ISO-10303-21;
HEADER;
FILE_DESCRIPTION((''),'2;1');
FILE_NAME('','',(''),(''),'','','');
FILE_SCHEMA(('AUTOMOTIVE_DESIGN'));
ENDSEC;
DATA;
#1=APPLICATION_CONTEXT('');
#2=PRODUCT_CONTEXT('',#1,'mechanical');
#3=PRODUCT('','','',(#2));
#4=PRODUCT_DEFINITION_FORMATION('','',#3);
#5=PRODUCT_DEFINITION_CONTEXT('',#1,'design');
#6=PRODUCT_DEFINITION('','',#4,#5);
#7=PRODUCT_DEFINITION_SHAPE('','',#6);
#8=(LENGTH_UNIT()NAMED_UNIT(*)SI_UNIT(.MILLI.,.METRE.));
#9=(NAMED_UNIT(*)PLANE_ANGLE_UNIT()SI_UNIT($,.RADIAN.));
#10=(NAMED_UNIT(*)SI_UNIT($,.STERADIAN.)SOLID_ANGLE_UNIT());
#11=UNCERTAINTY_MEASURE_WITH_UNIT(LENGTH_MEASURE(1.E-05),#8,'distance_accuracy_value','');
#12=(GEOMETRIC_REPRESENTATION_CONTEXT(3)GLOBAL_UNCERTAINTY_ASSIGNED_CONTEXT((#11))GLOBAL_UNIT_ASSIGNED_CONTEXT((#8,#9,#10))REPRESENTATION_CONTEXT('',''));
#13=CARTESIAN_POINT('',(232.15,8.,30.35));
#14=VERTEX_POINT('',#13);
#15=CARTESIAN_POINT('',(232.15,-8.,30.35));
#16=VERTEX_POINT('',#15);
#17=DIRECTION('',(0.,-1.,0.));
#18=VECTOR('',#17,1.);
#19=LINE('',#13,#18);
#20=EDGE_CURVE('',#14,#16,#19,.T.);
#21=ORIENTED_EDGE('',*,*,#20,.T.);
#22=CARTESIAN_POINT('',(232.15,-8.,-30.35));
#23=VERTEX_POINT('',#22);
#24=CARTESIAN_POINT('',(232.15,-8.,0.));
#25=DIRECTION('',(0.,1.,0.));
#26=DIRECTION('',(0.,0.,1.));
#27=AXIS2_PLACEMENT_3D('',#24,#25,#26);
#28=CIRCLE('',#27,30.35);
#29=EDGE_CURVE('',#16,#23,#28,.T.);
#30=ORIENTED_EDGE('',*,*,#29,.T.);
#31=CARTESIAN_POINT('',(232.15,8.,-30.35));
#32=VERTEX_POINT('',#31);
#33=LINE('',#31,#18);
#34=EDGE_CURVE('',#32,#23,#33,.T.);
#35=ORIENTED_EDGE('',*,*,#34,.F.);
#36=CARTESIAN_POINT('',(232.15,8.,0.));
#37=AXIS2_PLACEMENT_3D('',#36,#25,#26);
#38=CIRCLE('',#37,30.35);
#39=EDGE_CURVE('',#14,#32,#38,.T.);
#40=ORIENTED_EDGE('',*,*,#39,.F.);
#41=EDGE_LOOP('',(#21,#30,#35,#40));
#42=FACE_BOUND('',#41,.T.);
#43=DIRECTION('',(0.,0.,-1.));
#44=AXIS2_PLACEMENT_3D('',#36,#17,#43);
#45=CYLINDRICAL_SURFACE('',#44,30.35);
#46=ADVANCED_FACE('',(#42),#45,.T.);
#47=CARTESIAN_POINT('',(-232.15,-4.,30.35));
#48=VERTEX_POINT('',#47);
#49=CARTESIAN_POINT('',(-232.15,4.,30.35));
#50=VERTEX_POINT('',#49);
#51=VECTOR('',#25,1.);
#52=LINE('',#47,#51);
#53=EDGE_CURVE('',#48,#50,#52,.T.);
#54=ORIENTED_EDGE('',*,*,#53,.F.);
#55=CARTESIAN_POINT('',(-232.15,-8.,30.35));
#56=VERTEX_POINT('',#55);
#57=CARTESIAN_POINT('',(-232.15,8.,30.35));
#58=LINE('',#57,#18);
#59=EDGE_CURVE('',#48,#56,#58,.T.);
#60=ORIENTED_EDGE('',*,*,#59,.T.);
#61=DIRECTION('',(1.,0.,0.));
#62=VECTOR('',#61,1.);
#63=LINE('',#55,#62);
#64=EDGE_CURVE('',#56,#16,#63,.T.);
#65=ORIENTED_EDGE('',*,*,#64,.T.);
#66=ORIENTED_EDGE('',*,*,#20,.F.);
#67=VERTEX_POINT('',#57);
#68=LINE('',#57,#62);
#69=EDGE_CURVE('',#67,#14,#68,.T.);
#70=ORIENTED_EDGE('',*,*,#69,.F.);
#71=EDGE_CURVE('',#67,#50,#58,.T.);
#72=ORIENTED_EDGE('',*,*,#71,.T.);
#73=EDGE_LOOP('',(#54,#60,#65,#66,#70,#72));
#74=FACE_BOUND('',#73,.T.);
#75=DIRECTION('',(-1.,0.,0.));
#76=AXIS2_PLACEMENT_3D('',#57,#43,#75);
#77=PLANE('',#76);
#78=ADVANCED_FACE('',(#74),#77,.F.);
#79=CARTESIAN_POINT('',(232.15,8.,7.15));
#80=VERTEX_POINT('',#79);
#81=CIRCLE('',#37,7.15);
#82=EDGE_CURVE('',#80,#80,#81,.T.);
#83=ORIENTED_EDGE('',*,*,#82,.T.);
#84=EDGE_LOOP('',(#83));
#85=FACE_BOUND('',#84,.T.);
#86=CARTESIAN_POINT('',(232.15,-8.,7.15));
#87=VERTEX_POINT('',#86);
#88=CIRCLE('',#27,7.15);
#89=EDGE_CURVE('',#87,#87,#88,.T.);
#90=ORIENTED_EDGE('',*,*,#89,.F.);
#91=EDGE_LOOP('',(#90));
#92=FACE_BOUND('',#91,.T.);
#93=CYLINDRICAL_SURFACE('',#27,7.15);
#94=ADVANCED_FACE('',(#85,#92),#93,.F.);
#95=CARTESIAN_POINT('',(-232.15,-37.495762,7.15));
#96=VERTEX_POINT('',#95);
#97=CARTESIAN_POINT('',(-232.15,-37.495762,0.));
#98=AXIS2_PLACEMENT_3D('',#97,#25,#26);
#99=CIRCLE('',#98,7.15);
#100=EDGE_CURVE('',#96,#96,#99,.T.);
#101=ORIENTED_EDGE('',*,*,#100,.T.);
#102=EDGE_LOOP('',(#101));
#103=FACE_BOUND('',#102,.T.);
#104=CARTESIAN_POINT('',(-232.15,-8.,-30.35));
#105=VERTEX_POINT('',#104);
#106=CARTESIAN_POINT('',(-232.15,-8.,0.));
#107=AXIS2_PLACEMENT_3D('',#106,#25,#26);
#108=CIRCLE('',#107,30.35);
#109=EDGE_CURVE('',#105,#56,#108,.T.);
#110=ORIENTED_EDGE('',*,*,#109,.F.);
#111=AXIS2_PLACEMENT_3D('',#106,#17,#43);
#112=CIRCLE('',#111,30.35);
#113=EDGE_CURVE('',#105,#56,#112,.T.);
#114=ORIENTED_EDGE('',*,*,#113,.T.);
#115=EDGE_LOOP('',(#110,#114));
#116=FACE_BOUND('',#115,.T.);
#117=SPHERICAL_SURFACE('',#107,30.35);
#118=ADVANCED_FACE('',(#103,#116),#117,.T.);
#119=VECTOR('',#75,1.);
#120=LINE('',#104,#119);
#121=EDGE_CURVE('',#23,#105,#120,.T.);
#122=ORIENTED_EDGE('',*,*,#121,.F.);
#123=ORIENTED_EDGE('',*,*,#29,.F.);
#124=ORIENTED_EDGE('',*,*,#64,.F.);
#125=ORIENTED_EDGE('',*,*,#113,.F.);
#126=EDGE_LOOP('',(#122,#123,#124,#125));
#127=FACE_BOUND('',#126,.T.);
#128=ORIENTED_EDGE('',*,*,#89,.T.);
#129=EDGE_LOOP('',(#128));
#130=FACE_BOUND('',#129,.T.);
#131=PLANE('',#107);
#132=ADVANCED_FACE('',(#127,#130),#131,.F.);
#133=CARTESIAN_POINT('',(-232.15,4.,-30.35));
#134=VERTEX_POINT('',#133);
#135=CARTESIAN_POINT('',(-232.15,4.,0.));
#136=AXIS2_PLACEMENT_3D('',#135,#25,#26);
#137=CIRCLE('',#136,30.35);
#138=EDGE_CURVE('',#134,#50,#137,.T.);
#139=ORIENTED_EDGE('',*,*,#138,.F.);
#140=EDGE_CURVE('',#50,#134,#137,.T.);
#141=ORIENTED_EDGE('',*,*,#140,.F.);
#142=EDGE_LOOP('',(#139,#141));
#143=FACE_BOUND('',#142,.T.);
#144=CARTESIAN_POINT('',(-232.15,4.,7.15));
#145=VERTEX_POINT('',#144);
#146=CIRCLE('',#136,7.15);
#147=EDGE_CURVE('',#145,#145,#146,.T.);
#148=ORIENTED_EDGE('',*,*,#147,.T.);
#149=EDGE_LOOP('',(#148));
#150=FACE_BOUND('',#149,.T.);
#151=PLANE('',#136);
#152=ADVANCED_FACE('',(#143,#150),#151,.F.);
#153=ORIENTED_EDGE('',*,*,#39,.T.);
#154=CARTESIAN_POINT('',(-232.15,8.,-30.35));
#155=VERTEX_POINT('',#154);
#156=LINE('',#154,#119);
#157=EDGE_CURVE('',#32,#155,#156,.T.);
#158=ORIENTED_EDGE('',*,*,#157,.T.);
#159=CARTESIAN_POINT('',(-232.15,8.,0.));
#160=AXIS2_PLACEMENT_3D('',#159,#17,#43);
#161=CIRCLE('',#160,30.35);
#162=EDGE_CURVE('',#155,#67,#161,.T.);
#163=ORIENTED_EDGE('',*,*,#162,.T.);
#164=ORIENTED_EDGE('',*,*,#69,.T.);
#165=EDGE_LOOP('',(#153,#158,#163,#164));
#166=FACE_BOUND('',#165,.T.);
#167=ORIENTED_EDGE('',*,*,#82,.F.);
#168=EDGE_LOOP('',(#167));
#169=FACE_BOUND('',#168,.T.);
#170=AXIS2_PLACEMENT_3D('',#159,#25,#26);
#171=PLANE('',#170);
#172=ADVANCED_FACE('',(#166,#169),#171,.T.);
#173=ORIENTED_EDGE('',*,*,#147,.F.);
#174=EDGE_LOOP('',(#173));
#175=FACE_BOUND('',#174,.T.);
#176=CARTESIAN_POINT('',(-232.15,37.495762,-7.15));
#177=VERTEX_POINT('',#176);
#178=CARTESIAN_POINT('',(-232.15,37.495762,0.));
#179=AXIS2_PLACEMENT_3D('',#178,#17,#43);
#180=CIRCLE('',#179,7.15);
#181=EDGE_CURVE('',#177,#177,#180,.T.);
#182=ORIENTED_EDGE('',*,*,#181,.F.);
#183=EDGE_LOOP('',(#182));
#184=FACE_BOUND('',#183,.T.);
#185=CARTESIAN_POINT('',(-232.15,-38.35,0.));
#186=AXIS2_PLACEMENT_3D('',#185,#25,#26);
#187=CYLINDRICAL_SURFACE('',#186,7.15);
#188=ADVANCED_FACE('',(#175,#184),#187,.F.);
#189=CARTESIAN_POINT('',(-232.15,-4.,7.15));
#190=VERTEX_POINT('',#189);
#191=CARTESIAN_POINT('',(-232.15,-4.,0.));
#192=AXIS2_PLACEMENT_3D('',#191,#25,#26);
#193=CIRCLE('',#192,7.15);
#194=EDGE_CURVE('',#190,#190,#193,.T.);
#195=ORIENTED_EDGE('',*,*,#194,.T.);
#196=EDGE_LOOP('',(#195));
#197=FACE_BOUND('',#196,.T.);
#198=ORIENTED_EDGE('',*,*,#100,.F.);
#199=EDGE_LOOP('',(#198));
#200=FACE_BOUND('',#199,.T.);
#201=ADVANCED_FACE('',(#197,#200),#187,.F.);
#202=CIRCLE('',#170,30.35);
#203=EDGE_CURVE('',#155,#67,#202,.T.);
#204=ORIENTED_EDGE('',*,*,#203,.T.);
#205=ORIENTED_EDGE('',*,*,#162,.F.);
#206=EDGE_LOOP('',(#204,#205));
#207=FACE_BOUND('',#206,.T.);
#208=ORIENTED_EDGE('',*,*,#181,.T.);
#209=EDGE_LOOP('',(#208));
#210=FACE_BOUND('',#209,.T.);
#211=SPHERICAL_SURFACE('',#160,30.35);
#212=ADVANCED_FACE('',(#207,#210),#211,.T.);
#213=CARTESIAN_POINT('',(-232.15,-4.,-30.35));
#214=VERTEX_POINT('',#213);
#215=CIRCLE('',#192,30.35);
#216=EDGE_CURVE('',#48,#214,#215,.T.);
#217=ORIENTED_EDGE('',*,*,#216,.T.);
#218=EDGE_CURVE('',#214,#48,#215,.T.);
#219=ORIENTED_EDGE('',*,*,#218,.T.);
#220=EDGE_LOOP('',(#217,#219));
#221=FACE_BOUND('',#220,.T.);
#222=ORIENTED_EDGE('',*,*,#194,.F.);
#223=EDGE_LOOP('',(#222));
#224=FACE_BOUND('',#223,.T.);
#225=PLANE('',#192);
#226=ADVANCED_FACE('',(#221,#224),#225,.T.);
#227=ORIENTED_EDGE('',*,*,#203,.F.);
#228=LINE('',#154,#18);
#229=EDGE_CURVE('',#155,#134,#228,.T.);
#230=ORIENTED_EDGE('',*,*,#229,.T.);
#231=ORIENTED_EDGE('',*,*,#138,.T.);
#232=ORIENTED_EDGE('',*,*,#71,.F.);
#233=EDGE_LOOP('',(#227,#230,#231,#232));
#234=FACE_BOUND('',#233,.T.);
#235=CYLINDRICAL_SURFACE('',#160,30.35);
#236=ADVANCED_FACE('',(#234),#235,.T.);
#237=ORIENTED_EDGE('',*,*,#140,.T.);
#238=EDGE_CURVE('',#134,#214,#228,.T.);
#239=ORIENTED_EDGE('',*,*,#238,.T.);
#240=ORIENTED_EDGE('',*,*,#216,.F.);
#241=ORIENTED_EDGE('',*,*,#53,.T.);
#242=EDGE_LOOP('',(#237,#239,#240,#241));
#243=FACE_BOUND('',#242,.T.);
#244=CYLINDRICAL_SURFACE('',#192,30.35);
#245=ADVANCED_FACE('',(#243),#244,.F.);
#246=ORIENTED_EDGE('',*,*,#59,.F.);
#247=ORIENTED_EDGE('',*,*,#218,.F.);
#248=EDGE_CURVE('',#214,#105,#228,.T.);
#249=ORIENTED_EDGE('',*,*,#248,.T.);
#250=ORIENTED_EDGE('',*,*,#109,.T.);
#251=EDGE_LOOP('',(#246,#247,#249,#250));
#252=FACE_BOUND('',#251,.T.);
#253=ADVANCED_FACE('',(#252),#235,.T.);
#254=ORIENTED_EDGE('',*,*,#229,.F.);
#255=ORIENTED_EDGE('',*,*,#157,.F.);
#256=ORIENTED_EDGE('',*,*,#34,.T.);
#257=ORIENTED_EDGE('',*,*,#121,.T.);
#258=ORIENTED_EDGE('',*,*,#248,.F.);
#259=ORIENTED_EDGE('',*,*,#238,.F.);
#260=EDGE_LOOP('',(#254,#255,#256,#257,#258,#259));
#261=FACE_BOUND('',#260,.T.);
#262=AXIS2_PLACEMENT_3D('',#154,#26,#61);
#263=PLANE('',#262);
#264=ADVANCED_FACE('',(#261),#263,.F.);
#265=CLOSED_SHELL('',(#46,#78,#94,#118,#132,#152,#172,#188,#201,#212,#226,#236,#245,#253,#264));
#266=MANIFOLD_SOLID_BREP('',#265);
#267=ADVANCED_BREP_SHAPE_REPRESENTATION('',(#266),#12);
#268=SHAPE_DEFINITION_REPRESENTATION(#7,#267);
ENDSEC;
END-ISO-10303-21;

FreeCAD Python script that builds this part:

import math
import FreeCAD as App
import Part
import Sketcher

V = App.Vector
Q = App.Units.Quantity

doc = App.newDocument("Part")
params = doc.addObject("Spreadsheet::Sheet", "Params")
for row, (alias, value) in enumerate([
    ("sketch1_radius", "30.35 mm"),
    ("sketch1_width", "464.3 mm"),
    ("pad1_length", "16 mm"),
    ("sketch2_diameter", "14.3 mm"),
    ("sketch3_radius", "30.35 mm"),
    ("revolution_angle", "180 deg"),
    ("sketch4_diameter", "60.7 mm"),
    ("pocket2_length", "8 mm"),
    ("sketch5_diameter", "14.3 mm"),
], start=1):
    params.set(f"A{row}", alias)
    params.set(f"B{row}", "=" + value)
    params.setAlias(f"B{row}", alias)

body = doc.addObject("PartDesign::Body", "Body")

# Sketch on XZ plane
sketch1 = body.newObject("Sketcher::SketchObject", "Sketch")
sketch1.AttachmentSupport = (doc.getObject("XZ_Plane"), [""])
sketch1.MapMode = "FlatFace"
sketch1.addGeometry([
    Part.LineSegment(V(232, -30, 0), V(-232, -30, 0)),
    Part.ArcOfCircle(Part.Circle(V(-232, 0, 0), V(0, 0, 1), 30), math.radians(90), math.radians(270)),
    Part.LineSegment(V(-232, 30, 0), V(232, 30, 0)),
    Part.ArcOfCircle(Part.Circle(V(232, 0, 0), V(0, 0, 1), 30), math.radians(-90), math.radians(90)),
], False)
sketch1.addConstraint([
    Sketcher.Constraint("Tangent", 0, 2, 1, 2),
    Sketcher.Constraint("Tangent", 1, 1, 2, 1),
    Sketcher.Constraint("Tangent", 2, 2, 3, 2),
    Sketcher.Constraint("Tangent", 3, 1, 0, 1),
    Sketcher.Constraint("Horizontal", 0),
    Sketcher.Constraint("Horizontal", 2),
    Sketcher.Constraint("Symmetric", 1, 3, 3, 3, -1, 1),
    Sketcher.Constraint("Radius", 1, Q("30.35 mm")),
    Sketcher.Constraint("DistanceX", 0, 2, 0, 1, Q("464.3 mm")),
])
sketch1.setExpression("Constraints[7]", "Params.sketch1_radius")
sketch1.setExpression("Constraints[8]", "Params.sketch1_width")
pad1 = body.newObject("PartDesign::Pad", "Pad")
pad1.Profile = sketch1
pad1.setExpression("Length", "Params.pad1_length")
pad1.Midplane = True

# Sketch on XZ plane
sketch2 = body.newObject("Sketcher::SketchObject", "Sketch001")
sketch2.AttachmentSupport = (doc.getObject("XZ_Plane"), [""])
sketch2.MapMode = "FlatFace"
sketch2.AttachmentOffset = App.Placement(V(0, 0, -8), App.Rotation())
sketch2.addGeometry(Part.Circle(V(232, 0, 0), V(0, 0, 1), 7), False)
sketch2.addConstraint([
    Sketcher.Constraint("PointOnObject", 0, 3, -1),
    Sketcher.Constraint("Diameter", 0, Q("14.3 mm")),
    Sketcher.Constraint("DistanceX", -1, 1, 0, 3, Q("232.15 mm")),
])
sketch2.setExpression("Constraints[1]", "Params.sketch2_diameter")
pocket1 = body.newObject("PartDesign::Pocket", "Pocket")
pocket1.Profile = sketch2
pocket1.Type = "ThroughAll"
pocket1.Reversed = True

# Sketch on XZ plane
sketch3 = body.newObject("Sketcher::SketchObject", "Sketch002")
sketch3.AttachmentSupport = (doc.getObject("XZ_Plane"), [""])
sketch3.MapMode = "FlatFace"
sketch3.AttachmentOffset = App.Placement(V(0, 0, -8), App.Rotation())
sketch3.addGeometry([
    Part.LineSegment(V(-232, 30, 0), V(-232, -30, 0)),
    Part.ArcOfCircle(Part.Circle(V(-232, 0, 0), V(0, 0, 1), 30), math.radians(90), math.radians(270)),
], False)
sketch3.addGeometry(Part.LineSegment(V(-232, 30, 0), V(-232, -30, 0)), True)  # axis
sketch3.addConstraint([
    Sketcher.Constraint("Coincident", 0, 1, 1, 1),
    Sketcher.Constraint("Coincident", 1, 2, 0, 2),
    Sketcher.Constraint("Vertical", 0),
    Sketcher.Constraint("Vertical", 2),
    Sketcher.Constraint("Coincident", 2, 1, 0, 1),
    Sketcher.Constraint("PointOnObject", 1, 3, -1),
    Sketcher.Constraint("Vertical", 1, 3, 0, 1),
    Sketcher.Constraint("Equal", 0, 2),
    Sketcher.Constraint("Radius", 1, Q("30.35 mm")),
    Sketcher.Constraint("DistanceX", 1, 3, -1, 1, Q("232.15 mm")),
])
sketch3.setExpression("Constraints[8]", "Params.sketch3_radius")
revolution = body.newObject("PartDesign::Revolution", "Revolution")
revolution.Profile = sketch3
revolution.ReferenceAxis = (sketch3, ["Axis0"])
revolution.setExpression("Angle", "Params.revolution_angle")
doc.recompute()

mirrored = body.newObject("PartDesign::Mirrored", "Mirrored")
mirrored.Originals = [revolution]
mirrored.MirrorPlane = (doc.getObject("XZ_Plane"), [""])
body.Tip = mirrored

# Sketch on XZ plane
sketch4 = body.newObject("Sketcher::SketchObject", "Sketch003")
sketch4.AttachmentSupport = (doc.getObject("XZ_Plane"), [""])
sketch4.MapMode = "FlatFace"
sketch4.addGeometry(Part.Circle(V(-232, 0, 0), V(0, 0, 1), 30), False)
sketch4.addConstraint([
    Sketcher.Constraint("PointOnObject", 0, 3, -1),
    Sketcher.Constraint("Diameter", 0, Q("60.7 mm")),
    Sketcher.Constraint("DistanceX", 0, 3, -1, 1, Q("232.15 mm")),
])
sketch4.setExpression("Constraints[1]", "Params.sketch4_diameter")
pocket2 = body.newObject("PartDesign::Pocket", "Pocket001")
pocket2.Profile = sketch4
pocket2.setExpression("Length", "Params.pocket2_length")
pocket2.Midplane = True

# Sketch on XZ plane
sketch5 = body.newObject("Sketcher::SketchObject", "Sketch004")
sketch5.AttachmentSupport = (doc.getObject("XZ_Plane"), [""])
sketch5.MapMode = "FlatFace"
sketch5.addGeometry(Part.Circle(V(-232, 0, 0), V(0, 0, 1), 7), False)
sketch5.addConstraint([
    Sketcher.Constraint("PointOnObject", 0, 3, -1),
    Sketcher.Constraint("Diameter", 0, Q("14.3 mm")),
    Sketcher.Constraint("DistanceX", 0, 3, -1, 1, Q("232.15 mm")),
])
sketch5.setExpression("Constraints[1]", "Params.sketch5_diameter")
pocket3 = body.newObject("PartDesign::Pocket", "Pocket002")
pocket3.Profile = sketch5
pocket3.Type = "ThroughAll"
pocket3.Midplane = True

doc.recompute()
